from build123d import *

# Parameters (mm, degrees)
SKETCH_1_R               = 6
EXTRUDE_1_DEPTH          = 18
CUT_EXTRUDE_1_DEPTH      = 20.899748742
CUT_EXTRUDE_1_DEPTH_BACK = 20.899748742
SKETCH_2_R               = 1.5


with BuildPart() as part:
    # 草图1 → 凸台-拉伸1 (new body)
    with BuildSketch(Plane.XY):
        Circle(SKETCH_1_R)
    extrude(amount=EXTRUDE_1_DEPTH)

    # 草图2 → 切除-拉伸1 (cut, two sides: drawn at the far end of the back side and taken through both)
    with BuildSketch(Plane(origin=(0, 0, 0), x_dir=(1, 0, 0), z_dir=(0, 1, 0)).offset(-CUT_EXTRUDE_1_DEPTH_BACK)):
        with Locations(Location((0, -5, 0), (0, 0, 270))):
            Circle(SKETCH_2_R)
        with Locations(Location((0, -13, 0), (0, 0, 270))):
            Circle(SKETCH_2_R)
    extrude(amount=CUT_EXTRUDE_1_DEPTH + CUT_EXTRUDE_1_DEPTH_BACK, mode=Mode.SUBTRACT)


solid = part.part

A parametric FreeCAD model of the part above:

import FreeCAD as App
import Part
import Sketcher

V = App.Vector

doc = App.newDocument("Part")
body = doc.addObject("PartDesign::Body", "Body")

# Sketch on XY plane
sketch1 = doc.addObject("Sketcher::SketchObject", "Sketch")
body.addObject(sketch1)
sketch1.AttachmentSupport = (doc.XY_Plane, [""])
sketch1.MapMode = "FlatFace"
sketch1.addGeometry(Part.Circle(V(0, 0, 0), V(0, 0, 1), 6), False)
sketch1.addConstraint([
    Sketcher.Constraint("Coincident", 0, 3, -1, 1),
    Sketcher.Constraint("Diameter", 0, 12.0),
])
pad1 = doc.addObject("PartDesign::Pad", "Pad")
body.addObject(pad1)
pad1.Profile = sketch1
pad1.Length = 18

# Sketch on XZ plane
sketch2 = doc.addObject("Sketcher::SketchObject", "Sketch001")
body.addObject(sketch2)
sketch2.AttachmentSupport = (doc.XZ_Plane, [""])
sketch2.MapMode = "FlatFace"
sketch2.addGeometry([
    Part.Circle(V(0, 5, 0), V(0, 0, 1), 1.5),
    Part.Circle(V(0, 13, 0), V(0, 0, 1), 1.5),
], False)
sketch2.addConstraint([
    Sketcher.Constraint("Equal", 0, 1),
    Sketcher.Constraint("PointOnObject", 0, 3, -2),
    Sketcher.Constraint("PointOnObject", 1, 3, -2),
    Sketcher.Constraint("Diameter", 0, 3.0),
    Sketcher.Constraint("DistanceY", -1, 1, 0, 3, 5.0),
    Sketcher.Constraint("DistanceY", -1, 1, 1, 3, 13.0),
])
pocket1 = doc.addObject("PartDesign::Pocket", "Pocket")
body.addObject(pocket1)
pocket1.Profile = sketch2
pocket1.Type = "ThroughAll"
pocket1.Midplane = True

doc.recompute()
